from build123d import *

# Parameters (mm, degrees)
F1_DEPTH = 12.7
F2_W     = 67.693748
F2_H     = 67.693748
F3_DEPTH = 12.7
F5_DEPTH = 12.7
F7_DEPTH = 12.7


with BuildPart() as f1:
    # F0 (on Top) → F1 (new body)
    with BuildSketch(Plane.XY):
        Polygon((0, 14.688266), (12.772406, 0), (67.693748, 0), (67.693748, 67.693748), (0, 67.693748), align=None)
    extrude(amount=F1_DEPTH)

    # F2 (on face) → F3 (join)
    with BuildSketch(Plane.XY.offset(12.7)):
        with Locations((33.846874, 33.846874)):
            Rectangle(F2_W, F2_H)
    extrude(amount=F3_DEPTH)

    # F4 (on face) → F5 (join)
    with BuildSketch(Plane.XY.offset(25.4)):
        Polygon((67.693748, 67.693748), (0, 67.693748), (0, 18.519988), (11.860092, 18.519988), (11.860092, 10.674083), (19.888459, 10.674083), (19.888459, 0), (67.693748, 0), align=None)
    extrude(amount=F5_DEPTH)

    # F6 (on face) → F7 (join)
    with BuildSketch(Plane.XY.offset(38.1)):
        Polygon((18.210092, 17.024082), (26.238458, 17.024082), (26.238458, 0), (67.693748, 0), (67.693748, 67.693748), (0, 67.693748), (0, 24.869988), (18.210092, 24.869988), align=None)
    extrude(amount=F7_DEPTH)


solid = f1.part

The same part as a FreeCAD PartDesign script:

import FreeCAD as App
import Part
import Sketcher
from FreeCAD import Vector
Q = App.Units.Quantity

doc = App.newDocument("Part")
params = doc.addObject("Spreadsheet::Sheet", "Params")
for row, (alias, value) in enumerate([
    ("pad1_length", "0.5 in"),
    ("pad2_length", "0.5 in"),
    ("pad3_length", "0.5 in"),
    ("pad4_length", "0.5 in"),
], start=1):
    params.set(f"A{row}", alias)
    params.set(f"B{row}", "=" + value)
    params.setAlias(f"B{row}", alias)

body = doc.addObject("PartDesign::Body", "Body")

sketch1 = body.newObject("Sketcher::SketchObject", "Sketch")
sketch1.AttachmentSupport = (doc.getObject("XY_Plane"), [""])
sketch1.MapMode = "FlatFace"
sketch1.addGeometry([
    Part.LineSegment(Vector(0, 15, 0), Vector(13, 0, 0)),
    Part.LineSegment(Vector(13, 0, 0), Vector(68, 0, 0)),
    Part.LineSegment(Vector(68, 0, 0), Vector(68, 68, 0)),
    Part.LineSegment(Vector(68, 68, 0), Vector(0, 68, 0)),
    Part.LineSegment(Vector(0, 68, 0), Vector(0, 15, 0)),
], False)
sketch1.addConstraint([
    Sketcher.Constraint("Coincident", 0, 2, 1, 1),
    Sketcher.Constraint("Coincident", 1, 2, 2, 1),
    Sketcher.Constraint("Coincident", 2, 2, 3, 1),
    Sketcher.Constraint("Coincident", 3, 2, 4, 1),
    Sketcher.Constraint("Coincident", 4, 2, 0, 1),
    Sketcher.Constraint("Horizontal", 1),
    Sketcher.Constraint("Vertical", 2),
    Sketcher.Constraint("Horizontal", 3),
    Sketcher.Constraint("Vertical", 4),
    Sketcher.Constraint("PointOnObject", 0, 2, -1),
    Sketcher.Constraint("PointOnObject", 3, 2, -2),
    Sketcher.Constraint("Equal", 3, 2),
    Sketcher.Constraint("DistanceX", 1, 1, 1, 2, Q("54.921342 mm")),
    Sketcher.Constraint("DistanceX", 3, 2, 3, 1, Q("67.693748 mm")),
    Sketcher.Constraint("DistanceY", 4, 2, 4, 1, Q("53.005482 mm")),
])
pad1 = body.newObject("PartDesign::Pad", "Pad")
pad1.Profile = sketch1
pad1.setExpression("Length", "Params.pad1_length")

sketch2 = body.newObject("Sketcher::SketchObject", "Sketch001")
sketch2.AttachmentSupport = (doc.getObject("XY_Plane"), [""])
sketch2.MapMode = "FlatFace"
sketch2.AttachmentOffset = App.Placement(Vector(0, 0, 0.5 * 25.4), App.Rotation())
sketch2.addGeometry([
    Part.LineSegment(Vector(0, 68, 0), Vector(0, 0, 0)),
    Part.LineSegment(Vector(0, 0, 0), Vector(68, 0, 0)),
    Part.LineSegment(Vector(68, 0, 0), Vector(68, 68, 0)),
    Part.LineSegment(Vector(68, 68, 0), Vector(0, 68, 0)),
], False)
sketch2.addConstraint([
    Sketcher.Constraint("Coincident", 0, 2, 1, 1),
    Sketcher.Constraint("Coincident", 1, 2, 2, 1),
    Sketcher.Constraint("Coincident", 2, 2, 3, 1),
    Sketcher.Constraint("Coincident", 3, 2, 0, 1),
    Sketcher.Constraint("Vertical", 0),
    Sketcher.Constraint("Horizontal", 1),
    Sketcher.Constraint("Vertical", 2),
    Sketcher.Constraint("Horizontal", 3),
    Sketcher.Constraint("Coincident", 0, 2, -1, 1),
    Sketcher.Constraint("Equal", 3, 0),
    Sketcher.Constraint("DistanceX", 1, 1, 1, 2, Q("67.693748 mm")),
])
pad2 = body.newObject("PartDesign::Pad", "Pad001")
pad2.Profile = sketch2
pad2.setExpression("Length", "Params.pad2_length")

sketch3 = body.newObject("Sketcher::SketchObject", "Sketch002")
sketch3.AttachmentSupport = (doc.getObject("XY_Plane"), [""])
sketch3.MapMode = "FlatFace"
sketch3.AttachmentOffset = App.Placement(Vector(0, 0, 1 * 25.4), App.Rotation())
sketch3.addGeometry([
    Part.LineSegment(Vector(68, 68, 0), Vector(0, 68, 0)),
    Part.LineSegment(Vector(0, 68, 0), Vector(0, 19, 0)),
    Part.LineSegment(Vector(0, 19, 0), Vector(12, 19, 0)),
    Part.LineSegment(Vector(12, 19, 0), Vector(12, 11, 0)),
    Part.LineSegment(Vector(12, 11, 0), Vector(20, 11, 0)),
    Part.LineSegment(Vector(20, 11, 0), Vector(20, 0, 0)),
    Part.LineSegment(Vector(20, 0, 0), Vector(68, 0, 0)),
    Part.LineSegment(Vector(68, 0, 0), Vector(68, 68, 0)),
], False)
sketch3.addConstraint([
    Sketcher.Constraint("Coincident", 0, 2, 1, 1),
    Sketcher.Constraint("Coincident", 1, 2, 2, 1),
    Sketcher.Constraint("Coincident", 2, 2, 3, 1),
    Sketcher.Constraint("Coincident", 3, 2, 4, 1),
    Sketcher.Constraint("Coincident", 4, 2, 5, 1),
    Sketcher.Constraint("Coincident", 5, 2, 6, 1),
    Sketcher.Constraint("Coincident", 6, 2, 7, 1),
    Sketcher.Constraint("Coincident", 7, 2, 0, 1),
    Sketcher.Constraint("Horizontal", 0),
    Sketcher.Constraint("Vertical", 1),
    Sketcher.Constraint("Horizontal", 2),
    Sketcher.Constraint("Vertical", 3),
    Sketcher.Constraint("Horizontal", 4),
    Sketcher.Constraint("Vertical", 5),
    Sketcher.Constraint("Horizontal", 6),
    Sketcher.Constraint("Vertical", 7),
    Sketcher.Constraint("PointOnObject", 0, 2, -2),
    Sketcher.Constraint("PointOnObject", 5, 2, -1),
    Sketcher.Constraint("Equal", 0, 7),
    Sketcher.Constraint("DistanceX", 0, 2, 0, 1, Q("67.693748 mm")),
    Sketcher.Constraint("DistanceX", 6, 1, 6, 2, Q("47.805289 mm")),
    Sketcher.Constraint("DistanceY", 1, 2, 1, 1, Q("49.17376 mm")),
    Sketcher.Constraint("DistanceX", 2, 1, 2, 2, Q("11.860092 mm")),
    Sketcher.Constraint("DistanceY", 3, 2, 3, 1, Q("7.845905 mm")),
])
pad3 = body.newObject("PartDesign::Pad", "Pad002")
pad3.Profile = sketch3
pad3.setExpression("Length", "Params.pad3_length")

sketch4 = body.newObject("Sketcher::SketchObject", "Sketch003")
sketch4.AttachmentSupport = (doc.getObject("XY_Plane"), [""])
sketch4.MapMode = "FlatFace"
sketch4.AttachmentOffset = App.Placement(Vector(0, 0, 1.5 * 25.4), App.Rotation())
sketch4.addGeometry([
    Part.LineSegment(Vector(18, 17, 0), Vector(26, 17, 0)),
    Part.LineSegment(Vector(26, 17, 0), Vector(26, 0, 0)),
    Part.LineSegment(Vector(26, 0, 0), Vector(68, 0, 0)),
    Part.LineSegment(Vector(68, 0, 0), Vector(68, 68, 0)),
    Part.LineSegment(Vector(68, 68, 0), Vector(0, 68, 0)),
    Part.LineSegment(Vector(0, 68, 0), Vector(0, 25, 0)),
    Part.LineSegment(Vector(0, 25, 0), Vector(18, 25, 0)),
    Part.LineSegment(Vector(18, 25, 0), Vector(18, 17, 0)),
], False)
sketch4.addConstraint([
    Sketcher.Constraint("Coincident", 0, 2, 1, 1),
    Sketcher.Constraint("Coincident", 1, 2, 2, 1),
    Sketcher.Constraint("Coincident", 2, 2, 3, 1),
    Sketcher.Constraint("Coincident", 3, 2, 4, 1),
    Sketcher.Constraint("Coincident", 4, 2, 5, 1),
    Sketcher.Constraint("Coincident", 5, 2, 6, 1),
    Sketcher.Constraint("Coincident", 6, 2, 7, 1),
    Sketcher.Constraint("Coincident", 7, 2, 0, 1),
    Sketcher.Constraint("Horizontal", 0),
    Sketcher.Constraint("Vertical", 1),
    Sketcher.Constraint("Horizontal", 2),
    Sketcher.Constraint("Vertical", 3),
    Sketcher.Constraint("Horizontal", 4),
    Sketcher.Constraint("Vertical", 5),
    Sketcher.Constraint("Horizontal", 6),
    Sketcher.Constraint("Vertical", 7),
    Sketcher.Constraint("PointOnObject", 1, 2, -1),
    Sketcher.Constraint("PointOnObject", 4, 2, -2),
    Sketcher.Constraint("Equal", 4, 3),
    Sketcher.Constraint("DistanceX", 2, 1, 2, 2, Q("41.45529 mm")),
    Sketcher.Constraint("DistanceX", 4, 2, 4, 1, Q("67.693748 mm")),
    Sketcher.Constraint("DistanceX", 6, 1, 6, 2, Q("18.210092 mm")),
    Sketcher.Constraint("DistanceY", 1, 2, 1, 1, Q("17.024082 mm")),
    Sketcher.Constraint("DistanceY", 5, 2, 5, 1, Q("42.82376 mm")),
])
pad4 = body.newObject("PartDesign::Pad", "Pad003")
pad4.Profile = sketch4
pad4.setExpression("Length", "Params.pad4_length")

doc.recompute()
